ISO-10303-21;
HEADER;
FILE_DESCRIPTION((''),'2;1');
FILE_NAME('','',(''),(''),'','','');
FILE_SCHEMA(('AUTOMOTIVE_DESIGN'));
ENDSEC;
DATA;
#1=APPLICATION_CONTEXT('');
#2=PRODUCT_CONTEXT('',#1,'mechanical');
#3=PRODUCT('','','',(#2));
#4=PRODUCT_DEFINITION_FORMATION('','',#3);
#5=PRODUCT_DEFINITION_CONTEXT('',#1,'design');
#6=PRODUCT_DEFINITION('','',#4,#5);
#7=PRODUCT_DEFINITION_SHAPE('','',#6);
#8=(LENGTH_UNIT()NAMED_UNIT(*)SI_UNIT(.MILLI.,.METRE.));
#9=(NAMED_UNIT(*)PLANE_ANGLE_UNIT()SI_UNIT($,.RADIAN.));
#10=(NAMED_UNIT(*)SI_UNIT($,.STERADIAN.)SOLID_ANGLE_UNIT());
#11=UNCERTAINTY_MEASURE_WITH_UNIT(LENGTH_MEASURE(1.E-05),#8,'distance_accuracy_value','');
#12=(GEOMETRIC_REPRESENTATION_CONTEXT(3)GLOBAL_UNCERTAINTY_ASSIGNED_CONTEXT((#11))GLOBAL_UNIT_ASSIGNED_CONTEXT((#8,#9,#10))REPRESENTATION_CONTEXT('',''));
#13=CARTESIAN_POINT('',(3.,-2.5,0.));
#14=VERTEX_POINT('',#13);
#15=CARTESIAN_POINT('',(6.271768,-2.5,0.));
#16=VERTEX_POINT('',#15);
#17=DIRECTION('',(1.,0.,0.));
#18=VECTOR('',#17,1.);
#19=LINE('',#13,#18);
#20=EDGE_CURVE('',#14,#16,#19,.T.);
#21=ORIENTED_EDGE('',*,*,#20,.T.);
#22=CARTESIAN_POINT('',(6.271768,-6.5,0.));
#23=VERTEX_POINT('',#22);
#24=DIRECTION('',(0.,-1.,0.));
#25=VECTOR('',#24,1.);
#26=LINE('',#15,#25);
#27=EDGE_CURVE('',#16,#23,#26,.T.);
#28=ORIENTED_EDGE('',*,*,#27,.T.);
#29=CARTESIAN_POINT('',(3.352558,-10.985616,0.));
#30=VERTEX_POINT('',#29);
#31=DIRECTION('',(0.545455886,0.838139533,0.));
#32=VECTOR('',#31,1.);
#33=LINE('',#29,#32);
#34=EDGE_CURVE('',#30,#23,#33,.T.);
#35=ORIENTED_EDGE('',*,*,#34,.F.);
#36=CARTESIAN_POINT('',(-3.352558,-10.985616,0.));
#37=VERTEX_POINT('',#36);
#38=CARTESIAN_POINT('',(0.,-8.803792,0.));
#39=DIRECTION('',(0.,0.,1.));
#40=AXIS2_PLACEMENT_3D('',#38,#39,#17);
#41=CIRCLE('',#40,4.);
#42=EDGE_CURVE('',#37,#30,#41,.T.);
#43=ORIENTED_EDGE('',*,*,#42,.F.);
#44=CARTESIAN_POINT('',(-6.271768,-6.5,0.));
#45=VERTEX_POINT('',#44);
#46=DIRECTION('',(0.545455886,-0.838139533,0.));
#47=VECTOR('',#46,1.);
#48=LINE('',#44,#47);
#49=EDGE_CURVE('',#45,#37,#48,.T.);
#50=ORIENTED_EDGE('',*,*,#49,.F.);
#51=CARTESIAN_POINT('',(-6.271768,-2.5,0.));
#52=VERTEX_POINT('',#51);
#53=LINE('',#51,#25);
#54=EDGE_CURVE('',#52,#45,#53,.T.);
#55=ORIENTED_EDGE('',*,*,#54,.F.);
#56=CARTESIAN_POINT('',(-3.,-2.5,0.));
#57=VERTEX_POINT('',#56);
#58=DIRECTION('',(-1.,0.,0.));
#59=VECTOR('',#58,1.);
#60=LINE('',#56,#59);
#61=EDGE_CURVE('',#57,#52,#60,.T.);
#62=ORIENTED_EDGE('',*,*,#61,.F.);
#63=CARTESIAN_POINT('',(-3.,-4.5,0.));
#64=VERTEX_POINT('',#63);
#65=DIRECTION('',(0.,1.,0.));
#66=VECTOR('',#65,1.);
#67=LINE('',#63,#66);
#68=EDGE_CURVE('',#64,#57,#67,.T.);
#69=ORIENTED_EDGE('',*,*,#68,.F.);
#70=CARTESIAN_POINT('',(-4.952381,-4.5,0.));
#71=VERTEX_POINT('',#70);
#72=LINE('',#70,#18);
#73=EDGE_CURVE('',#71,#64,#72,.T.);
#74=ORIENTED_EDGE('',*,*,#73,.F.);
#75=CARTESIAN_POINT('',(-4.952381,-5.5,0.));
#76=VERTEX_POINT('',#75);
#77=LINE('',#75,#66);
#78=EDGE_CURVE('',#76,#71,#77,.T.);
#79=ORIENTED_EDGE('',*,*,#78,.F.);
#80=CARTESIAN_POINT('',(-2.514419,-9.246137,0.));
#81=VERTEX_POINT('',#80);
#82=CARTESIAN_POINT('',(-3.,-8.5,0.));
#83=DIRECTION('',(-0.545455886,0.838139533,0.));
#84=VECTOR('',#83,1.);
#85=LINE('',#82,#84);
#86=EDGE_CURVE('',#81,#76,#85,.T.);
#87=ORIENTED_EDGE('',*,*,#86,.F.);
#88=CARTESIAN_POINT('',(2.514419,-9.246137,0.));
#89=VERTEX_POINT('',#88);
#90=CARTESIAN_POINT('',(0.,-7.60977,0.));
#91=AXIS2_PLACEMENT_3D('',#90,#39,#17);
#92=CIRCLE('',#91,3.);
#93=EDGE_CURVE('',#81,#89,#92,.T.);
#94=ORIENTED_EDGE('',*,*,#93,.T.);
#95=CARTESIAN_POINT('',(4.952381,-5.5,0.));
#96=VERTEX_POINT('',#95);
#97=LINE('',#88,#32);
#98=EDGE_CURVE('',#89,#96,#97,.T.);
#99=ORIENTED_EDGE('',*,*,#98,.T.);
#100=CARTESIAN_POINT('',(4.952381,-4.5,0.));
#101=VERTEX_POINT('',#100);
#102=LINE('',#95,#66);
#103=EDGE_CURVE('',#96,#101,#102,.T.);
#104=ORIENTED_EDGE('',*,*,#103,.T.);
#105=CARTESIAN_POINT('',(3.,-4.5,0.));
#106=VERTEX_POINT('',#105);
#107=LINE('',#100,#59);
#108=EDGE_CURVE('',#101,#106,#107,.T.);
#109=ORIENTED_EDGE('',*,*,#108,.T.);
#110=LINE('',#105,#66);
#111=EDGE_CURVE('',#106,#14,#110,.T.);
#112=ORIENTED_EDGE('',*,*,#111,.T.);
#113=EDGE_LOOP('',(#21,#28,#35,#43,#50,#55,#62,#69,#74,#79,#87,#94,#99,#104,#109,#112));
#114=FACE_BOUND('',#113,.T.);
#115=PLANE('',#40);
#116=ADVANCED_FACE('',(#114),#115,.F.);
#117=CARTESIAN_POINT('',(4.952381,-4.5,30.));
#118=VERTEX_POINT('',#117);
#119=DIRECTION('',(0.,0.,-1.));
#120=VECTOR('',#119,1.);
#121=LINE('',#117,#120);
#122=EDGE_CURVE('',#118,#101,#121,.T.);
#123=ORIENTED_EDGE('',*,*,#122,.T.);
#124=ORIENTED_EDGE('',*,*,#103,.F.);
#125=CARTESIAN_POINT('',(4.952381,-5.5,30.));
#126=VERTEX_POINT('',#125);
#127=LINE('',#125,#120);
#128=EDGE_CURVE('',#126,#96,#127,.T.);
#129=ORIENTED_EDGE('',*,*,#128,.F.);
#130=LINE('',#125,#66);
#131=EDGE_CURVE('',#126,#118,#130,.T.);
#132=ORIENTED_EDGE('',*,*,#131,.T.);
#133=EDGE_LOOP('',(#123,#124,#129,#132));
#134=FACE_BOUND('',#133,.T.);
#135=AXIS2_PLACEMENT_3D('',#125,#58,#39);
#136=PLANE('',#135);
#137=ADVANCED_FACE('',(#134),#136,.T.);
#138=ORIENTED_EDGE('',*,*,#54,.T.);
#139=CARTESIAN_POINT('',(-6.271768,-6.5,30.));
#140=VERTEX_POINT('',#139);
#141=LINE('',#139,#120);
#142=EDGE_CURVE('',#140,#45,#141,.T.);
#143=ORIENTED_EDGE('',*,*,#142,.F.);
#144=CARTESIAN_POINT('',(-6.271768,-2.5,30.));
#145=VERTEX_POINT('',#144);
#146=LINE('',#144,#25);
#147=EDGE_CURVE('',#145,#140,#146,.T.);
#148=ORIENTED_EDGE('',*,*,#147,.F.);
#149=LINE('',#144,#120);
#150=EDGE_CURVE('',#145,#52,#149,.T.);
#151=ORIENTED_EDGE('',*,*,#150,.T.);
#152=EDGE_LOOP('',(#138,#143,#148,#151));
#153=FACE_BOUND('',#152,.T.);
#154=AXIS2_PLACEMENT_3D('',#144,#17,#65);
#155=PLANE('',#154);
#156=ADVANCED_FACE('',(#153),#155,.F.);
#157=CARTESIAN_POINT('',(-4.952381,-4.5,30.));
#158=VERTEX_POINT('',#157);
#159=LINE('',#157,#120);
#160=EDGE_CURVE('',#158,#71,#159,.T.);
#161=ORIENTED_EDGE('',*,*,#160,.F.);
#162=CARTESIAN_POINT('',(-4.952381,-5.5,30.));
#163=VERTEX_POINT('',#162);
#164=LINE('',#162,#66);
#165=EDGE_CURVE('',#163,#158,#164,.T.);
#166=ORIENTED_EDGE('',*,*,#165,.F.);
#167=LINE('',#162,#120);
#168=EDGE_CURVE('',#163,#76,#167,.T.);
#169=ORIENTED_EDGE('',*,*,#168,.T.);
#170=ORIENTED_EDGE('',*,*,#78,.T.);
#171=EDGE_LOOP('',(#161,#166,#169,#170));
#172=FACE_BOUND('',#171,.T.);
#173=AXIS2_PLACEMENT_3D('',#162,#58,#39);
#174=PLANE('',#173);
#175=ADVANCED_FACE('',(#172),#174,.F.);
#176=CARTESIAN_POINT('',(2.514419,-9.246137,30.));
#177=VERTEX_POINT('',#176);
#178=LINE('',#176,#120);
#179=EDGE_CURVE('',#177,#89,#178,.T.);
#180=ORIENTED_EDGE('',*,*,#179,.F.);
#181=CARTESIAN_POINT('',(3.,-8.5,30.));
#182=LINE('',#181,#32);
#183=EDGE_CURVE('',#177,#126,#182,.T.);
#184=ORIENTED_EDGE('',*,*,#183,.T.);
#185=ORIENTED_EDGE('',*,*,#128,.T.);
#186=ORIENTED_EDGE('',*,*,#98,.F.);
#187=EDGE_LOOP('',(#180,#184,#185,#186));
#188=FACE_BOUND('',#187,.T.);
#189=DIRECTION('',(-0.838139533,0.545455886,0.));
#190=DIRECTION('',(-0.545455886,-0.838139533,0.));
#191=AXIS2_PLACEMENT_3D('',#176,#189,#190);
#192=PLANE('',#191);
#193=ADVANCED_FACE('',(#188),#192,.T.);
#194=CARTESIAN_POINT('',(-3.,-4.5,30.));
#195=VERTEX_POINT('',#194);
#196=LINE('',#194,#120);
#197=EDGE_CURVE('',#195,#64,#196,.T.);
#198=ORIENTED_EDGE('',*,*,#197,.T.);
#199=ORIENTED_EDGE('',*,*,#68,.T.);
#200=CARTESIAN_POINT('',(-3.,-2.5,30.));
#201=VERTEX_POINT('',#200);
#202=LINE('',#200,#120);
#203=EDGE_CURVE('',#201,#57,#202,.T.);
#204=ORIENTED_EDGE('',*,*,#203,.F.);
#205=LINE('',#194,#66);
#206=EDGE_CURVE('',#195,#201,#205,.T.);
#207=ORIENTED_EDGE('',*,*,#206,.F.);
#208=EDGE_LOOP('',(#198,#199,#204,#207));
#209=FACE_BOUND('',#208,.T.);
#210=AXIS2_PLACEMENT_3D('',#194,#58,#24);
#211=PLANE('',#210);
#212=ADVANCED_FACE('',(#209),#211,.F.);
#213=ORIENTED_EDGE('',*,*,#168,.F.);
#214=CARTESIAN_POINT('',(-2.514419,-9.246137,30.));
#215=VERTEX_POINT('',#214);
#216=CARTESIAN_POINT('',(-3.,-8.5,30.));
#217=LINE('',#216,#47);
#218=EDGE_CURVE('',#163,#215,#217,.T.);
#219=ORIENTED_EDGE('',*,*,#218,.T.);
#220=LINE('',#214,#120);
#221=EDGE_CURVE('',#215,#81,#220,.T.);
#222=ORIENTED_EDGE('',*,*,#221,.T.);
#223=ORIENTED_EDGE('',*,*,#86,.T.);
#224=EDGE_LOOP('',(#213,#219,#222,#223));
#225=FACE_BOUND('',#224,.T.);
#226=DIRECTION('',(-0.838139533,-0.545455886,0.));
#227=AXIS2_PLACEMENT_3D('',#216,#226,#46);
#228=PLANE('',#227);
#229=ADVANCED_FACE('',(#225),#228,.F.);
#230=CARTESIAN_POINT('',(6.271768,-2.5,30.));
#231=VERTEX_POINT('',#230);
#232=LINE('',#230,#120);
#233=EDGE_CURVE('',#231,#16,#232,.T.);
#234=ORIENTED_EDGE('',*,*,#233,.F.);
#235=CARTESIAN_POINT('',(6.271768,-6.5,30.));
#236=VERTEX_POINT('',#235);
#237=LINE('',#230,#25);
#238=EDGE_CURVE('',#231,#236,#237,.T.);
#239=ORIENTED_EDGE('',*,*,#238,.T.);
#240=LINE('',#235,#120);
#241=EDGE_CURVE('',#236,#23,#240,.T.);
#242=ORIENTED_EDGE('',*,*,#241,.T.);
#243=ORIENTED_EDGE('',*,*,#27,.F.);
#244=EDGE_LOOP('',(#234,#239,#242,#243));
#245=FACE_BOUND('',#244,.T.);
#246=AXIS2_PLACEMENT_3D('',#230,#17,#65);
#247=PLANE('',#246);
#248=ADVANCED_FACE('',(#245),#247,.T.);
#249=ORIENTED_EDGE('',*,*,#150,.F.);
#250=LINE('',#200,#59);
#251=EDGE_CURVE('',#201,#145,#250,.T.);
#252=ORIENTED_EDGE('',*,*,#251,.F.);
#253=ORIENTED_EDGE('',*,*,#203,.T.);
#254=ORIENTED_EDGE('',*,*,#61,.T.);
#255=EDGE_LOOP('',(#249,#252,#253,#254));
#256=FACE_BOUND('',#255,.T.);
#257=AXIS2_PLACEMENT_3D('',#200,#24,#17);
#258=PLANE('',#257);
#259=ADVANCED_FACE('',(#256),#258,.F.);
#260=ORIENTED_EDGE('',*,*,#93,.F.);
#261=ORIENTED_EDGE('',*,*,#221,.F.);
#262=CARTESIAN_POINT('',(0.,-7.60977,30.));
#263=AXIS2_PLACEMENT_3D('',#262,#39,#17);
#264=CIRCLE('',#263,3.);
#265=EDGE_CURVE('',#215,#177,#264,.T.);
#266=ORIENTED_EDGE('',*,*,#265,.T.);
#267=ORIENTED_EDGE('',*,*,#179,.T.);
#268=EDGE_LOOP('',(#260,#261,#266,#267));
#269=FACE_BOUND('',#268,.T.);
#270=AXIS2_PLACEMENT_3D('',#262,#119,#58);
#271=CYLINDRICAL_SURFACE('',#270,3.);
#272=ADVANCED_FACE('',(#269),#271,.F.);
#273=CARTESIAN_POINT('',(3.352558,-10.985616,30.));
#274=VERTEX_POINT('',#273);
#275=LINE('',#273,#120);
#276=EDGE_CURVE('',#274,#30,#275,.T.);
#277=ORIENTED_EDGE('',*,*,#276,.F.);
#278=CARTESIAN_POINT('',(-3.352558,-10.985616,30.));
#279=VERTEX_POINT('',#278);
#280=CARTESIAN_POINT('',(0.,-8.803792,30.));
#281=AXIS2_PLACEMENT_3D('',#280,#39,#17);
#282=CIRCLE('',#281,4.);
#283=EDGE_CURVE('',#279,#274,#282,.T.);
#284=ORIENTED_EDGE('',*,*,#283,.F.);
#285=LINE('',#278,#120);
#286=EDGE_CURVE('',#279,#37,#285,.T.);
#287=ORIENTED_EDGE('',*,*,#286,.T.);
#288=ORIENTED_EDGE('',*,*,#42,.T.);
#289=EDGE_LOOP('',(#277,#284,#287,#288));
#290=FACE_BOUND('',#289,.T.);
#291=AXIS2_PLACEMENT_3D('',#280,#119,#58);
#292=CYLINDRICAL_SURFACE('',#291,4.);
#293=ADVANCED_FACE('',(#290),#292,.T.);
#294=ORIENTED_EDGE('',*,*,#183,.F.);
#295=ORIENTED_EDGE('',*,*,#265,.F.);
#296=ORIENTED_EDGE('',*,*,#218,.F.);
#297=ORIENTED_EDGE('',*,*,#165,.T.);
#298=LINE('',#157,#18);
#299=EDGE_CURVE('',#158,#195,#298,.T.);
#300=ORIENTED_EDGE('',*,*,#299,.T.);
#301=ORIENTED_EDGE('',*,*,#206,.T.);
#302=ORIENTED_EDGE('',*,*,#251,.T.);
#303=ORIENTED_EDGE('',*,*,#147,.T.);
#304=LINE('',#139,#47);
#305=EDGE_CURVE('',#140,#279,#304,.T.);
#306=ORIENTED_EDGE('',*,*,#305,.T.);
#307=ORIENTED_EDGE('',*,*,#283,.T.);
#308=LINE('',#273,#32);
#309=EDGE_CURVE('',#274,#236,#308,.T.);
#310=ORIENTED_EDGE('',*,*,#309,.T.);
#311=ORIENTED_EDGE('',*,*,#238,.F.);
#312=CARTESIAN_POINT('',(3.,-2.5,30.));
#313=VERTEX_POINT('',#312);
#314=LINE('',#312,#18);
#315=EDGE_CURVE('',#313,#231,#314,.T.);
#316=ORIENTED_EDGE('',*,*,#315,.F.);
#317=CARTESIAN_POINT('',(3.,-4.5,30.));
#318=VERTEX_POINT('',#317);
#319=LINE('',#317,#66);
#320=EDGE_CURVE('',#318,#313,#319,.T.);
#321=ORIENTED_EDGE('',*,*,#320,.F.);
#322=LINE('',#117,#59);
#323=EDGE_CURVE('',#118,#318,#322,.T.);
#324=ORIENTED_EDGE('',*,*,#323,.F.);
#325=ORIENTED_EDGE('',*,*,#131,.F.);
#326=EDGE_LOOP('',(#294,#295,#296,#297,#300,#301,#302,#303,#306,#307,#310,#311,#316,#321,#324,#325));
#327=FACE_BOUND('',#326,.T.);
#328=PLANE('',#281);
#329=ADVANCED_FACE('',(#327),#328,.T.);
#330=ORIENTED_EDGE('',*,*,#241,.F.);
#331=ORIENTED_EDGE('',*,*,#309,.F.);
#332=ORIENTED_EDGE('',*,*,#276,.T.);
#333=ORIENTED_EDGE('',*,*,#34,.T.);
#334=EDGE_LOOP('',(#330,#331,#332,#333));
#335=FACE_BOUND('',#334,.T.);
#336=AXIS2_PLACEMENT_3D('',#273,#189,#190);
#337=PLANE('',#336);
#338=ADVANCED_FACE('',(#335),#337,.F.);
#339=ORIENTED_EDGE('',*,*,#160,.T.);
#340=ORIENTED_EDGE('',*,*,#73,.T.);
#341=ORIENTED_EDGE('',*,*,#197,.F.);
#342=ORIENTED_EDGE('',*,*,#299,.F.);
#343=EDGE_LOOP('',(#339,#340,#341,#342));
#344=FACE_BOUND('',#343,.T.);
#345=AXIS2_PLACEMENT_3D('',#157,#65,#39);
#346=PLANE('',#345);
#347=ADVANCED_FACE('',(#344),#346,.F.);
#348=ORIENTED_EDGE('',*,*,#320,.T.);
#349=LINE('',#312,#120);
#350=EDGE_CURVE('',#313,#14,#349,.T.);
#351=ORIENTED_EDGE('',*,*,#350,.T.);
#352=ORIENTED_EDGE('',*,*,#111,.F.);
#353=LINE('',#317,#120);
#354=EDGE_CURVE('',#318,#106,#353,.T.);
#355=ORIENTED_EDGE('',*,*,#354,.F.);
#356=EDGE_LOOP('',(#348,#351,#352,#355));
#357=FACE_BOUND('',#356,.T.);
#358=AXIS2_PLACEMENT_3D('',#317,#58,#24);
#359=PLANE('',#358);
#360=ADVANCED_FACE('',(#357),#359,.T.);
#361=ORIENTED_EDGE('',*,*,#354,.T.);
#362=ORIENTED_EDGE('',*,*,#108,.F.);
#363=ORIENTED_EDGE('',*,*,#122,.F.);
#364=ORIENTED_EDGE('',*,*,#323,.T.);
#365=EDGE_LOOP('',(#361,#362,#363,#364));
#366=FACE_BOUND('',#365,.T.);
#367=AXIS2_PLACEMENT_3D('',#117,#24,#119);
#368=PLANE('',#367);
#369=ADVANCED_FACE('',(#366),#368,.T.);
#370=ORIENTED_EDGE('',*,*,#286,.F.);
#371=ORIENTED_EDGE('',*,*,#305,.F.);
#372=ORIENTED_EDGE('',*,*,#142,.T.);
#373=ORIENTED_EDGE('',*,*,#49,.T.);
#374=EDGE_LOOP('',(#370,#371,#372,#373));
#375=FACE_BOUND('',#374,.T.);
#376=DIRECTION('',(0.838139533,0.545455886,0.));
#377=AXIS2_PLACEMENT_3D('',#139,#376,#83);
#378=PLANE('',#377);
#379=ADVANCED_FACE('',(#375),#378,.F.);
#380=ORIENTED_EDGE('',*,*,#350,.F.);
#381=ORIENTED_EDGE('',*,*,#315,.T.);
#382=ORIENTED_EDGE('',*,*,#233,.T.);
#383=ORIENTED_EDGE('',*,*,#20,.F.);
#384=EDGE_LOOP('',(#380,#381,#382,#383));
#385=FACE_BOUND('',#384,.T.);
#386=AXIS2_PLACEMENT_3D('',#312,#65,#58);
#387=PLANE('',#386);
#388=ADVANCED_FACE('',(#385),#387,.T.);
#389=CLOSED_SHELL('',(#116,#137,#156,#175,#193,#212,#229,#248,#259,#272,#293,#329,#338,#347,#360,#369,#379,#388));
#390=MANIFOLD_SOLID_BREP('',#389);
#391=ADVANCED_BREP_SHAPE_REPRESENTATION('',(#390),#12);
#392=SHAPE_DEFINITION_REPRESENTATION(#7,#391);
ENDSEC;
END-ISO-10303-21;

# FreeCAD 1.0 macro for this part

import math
import FreeCAD as App
import Part
import Sketcher
from FreeCAD import Vector
Q = App.Units.Quantity

doc = App.newDocument("Part")
body = doc.addObject("PartDesign::Body", "Body")

# Sketch on XY plane
sketch1 = doc.addObject("Sketcher::SketchObject", "Sketch")
body.addObject(sketch1)
sketch1.AttachmentSupport = (doc.XY_Plane, [""])
sketch1.MapMode = "FlatFace"
sketch1.addGeometry(Part.LineSegment(Vector(5, -5.5, 0), Vector(3, -8.5, 0)), False)
sketch1.addGeometry(Part.LineSegment(Vector(3, -8.5, 0), Vector(2.5, -9.2, 0)), False)
sketch1.addGeometry(Part.ArcOfCircle(Part.Circle(Vector(0, -7.6, 0), Vector(0, 0, 1), 3), math.radians(-147), math.radians(-33)), False)
sketch1.addGeometry(Part.LineSegment(Vector(-2.5, -9.2, 0), Vector(-3, -8.5, 0)), False)
sketch1.addGeometry(Part.LineSegment(Vector(-3, -8.5, 0), Vector(-5, -5.5, 0)), False)
sketch1.addGeometry(Part.LineSegment(Vector(-5, -5.5, 0), Vector(-5, -4.5, 0)), False)
sketch1.addGeometry(Part.LineSegment(Vector(-5, -4.5, 0), Vector(-3, -4.5, 0)), False)
sketch1.addGeometry(Part.LineSegment(Vector(-3, -4.5, 0), Vector(-3, -2.5, 0)), False)
sketch1.addGeometry(Part.LineSegment(Vector(-3, -2.5, 0), Vector(-6.3, -2.5, 0)), False)
sketch1.addGeometry(Part.LineSegment(Vector(-6.3, -2.5, 0), Vector(-6.3, -6.5, 0)), False)
sketch1.addGeometry(Part.LineSegment(Vector(-6.3, -6.5, 0), Vector(-3.4, -11, 0)), False)
sketch1.addGeometry(Part.ArcOfCircle(Part.Circle(Vector(0, -8.8, 0), Vector(0, 0, 1), 4), math.radians(-147), math.radians(-33)), False)
sketch1.addGeometry(Part.LineSegment(Vector(3.4, -11, 0), Vector(6.3, -6.5, 0)), False)
sketch1.addGeometry(Part.LineSegment(Vector(6.3, -6.5, 0), Vector(6.3, -2.5, 0)), False)
sketch1.addGeometry(Part.LineSegment(Vector(6.3, -2.5, 0), Vector(3, -2.5, 0)), False)
sketch1.addGeometry(Part.LineSegment(Vector(3, -2.5, 0), Vector(3, -4.5, 0)), False)
sketch1.addGeometry(Part.LineSegment(Vector(3, -4.5, 0), Vector(5, -4.5, 0)), False)
sketch1.addGeometry(Part.LineSegment(Vector(5, -4.5, 0), Vector(5, -5.5, 0)), False)
sketch1.addConstraint(Sketcher.Constraint("Coincident", 0, 2, 1, 1))
sketch1.addConstraint(Sketcher.Constraint("Tangent", 1, 2, 2, 2))
sketch1.addConstraint(Sketcher.Constraint("Tangent", 2, 1, 3, 1))
sketch1.addConstraint(Sketcher.Constraint("Coincident", 3, 2, 4, 1))
sketch1.addConstraint(Sketcher.Constraint("Coincident", 4, 2, 5, 1))
sketch1.addConstraint(Sketcher.Constraint("Coincident", 5, 2, 6, 1))
sketch1.addConstraint(Sketcher.Constraint("Coincident", 6, 2, 7, 1))
sketch1.addConstraint(Sketcher.Constraint("Coincident", 7, 2, 8, 1))
sketch1.addConstraint(Sketcher.Constraint("Coincident", 8, 2, 9, 1))
sketch1.addConstraint(Sketcher.Constraint("Coincident", 9, 2, 10, 1))
sketch1.addConstraint(Sketcher.Constraint("Tangent", 10, 2, 11, 1))
sketch1.addConstraint(Sketcher.Constraint("Tangent", 11, 2, 12, 1))
sketch1.addConstraint(Sketcher.Constraint("Coincident", 12, 2, 13, 1))
sketch1.addConstraint(Sketcher.Constraint("Coincident", 13, 2, 14, 1))
sketch1.addConstraint(Sketcher.Constraint("Coincident", 14, 2, 15, 1))
sketch1.addConstraint(Sketcher.Constraint("Coincident", 15, 2, 16, 1))
sketch1.addConstraint(Sketcher.Constraint("Coincident", 16, 2, 17, 1))
sketch1.addConstraint(Sketcher.Constraint("Coincident", 17, 2, 0, 1))
sketch1.addConstraint(Sketcher.Constraint("Vertical", 5))
sketch1.addConstraint(Sketcher.Constraint("Horizontal", 6))
sketch1.addConstraint(Sketcher.Constraint("Vertical", 7))
sketch1.addConstraint(Sketcher.Constraint("Horizontal", 8))
sketch1.addConstraint(Sketcher.Constraint("Vertical", 9))
sketch1.addConstraint(Sketcher.Constraint("Vertical", 13))
sketch1.addConstraint(Sketcher.Constraint("Horizontal", 14))
sketch1.addConstraint(Sketcher.Constraint("Vertical", 15))
sketch1.addConstraint(Sketcher.Constraint("Horizontal", 16))
sketch1.addConstraint(Sketcher.Constraint("Vertical", 17))
sketch1.addConstraint(Sketcher.Constraint("Symmetric", 1, 2, 2, 1, -2))
sketch1.addConstraint(Sketcher.Constraint("Symmetric", 10, 2, 11, 2, -2))
sketch1.addConstraint(Sketcher.Constraint("Symmetric", 8, 2, 13, 2, -2))
sketch1.addConstraint(Sketcher.Constraint("Symmetric", 6, 2, 15, 2, -2))
sketch1.addConstraint(Sketcher.Constraint("Symmetric", 4, 2, 17, 2, -2))
sketch1.addConstraint(Sketcher.Constraint("Parallel", 0, 1))
sketch1.addConstraint(Sketcher.Constraint("Parallel", 4, 10))
sketch1.addConstraint(Sketcher.Constraint("Horizontal", 0, 2, 3, 2))
sketch1.addConstraint(Sketcher.Constraint("Vertical", 3, 2, 6, 2))
sketch1.addConstraint(Sketcher.Constraint("Radius", 2, Q("3 mm")))
sketch1.addConstraint(Sketcher.Constraint("Radius", 11, Q("4 mm")))
sketch1.addConstraint(Sketcher.Constraint("DistanceY", 5, 1, 5, 2, Q("1 mm")))
sketch1.addConstraint(Sketcher.Constraint("DistanceY", 7, 1, 7, 2, Q("2 mm")))
sketch1.addConstraint(Sketcher.Constraint("DistanceY", 9, 2, 9, 1, Q("4 mm")))
sketch1.addConstraint(Sketcher.Constraint("DistanceX", -1, 1, 0, 2, Q("3 mm")))
sketch1.addConstraint(Sketcher.Constraint("DistanceY", 3, 2, 4, 2, Q("3 mm")))
sketch1.addConstraint(Sketcher.Constraint("DistanceY", 0, 2, -1, 1, Q("8.5 mm")))
sketch1.addConstraint(Sketcher.Constraint("DistanceX", 6, 1, 6, 2, Q("1.952381 mm")))
sketch1.addConstraint(Sketcher.Constraint("DistanceX", 8, 2, 8, 1, Q("3.271768 mm")))
pad1 = doc.addObject("PartDesign::Pad", "Pad")
body.addObject(pad1)
pad1.Profile = sketch1
pad1.Length = 30

doc.recompute()
